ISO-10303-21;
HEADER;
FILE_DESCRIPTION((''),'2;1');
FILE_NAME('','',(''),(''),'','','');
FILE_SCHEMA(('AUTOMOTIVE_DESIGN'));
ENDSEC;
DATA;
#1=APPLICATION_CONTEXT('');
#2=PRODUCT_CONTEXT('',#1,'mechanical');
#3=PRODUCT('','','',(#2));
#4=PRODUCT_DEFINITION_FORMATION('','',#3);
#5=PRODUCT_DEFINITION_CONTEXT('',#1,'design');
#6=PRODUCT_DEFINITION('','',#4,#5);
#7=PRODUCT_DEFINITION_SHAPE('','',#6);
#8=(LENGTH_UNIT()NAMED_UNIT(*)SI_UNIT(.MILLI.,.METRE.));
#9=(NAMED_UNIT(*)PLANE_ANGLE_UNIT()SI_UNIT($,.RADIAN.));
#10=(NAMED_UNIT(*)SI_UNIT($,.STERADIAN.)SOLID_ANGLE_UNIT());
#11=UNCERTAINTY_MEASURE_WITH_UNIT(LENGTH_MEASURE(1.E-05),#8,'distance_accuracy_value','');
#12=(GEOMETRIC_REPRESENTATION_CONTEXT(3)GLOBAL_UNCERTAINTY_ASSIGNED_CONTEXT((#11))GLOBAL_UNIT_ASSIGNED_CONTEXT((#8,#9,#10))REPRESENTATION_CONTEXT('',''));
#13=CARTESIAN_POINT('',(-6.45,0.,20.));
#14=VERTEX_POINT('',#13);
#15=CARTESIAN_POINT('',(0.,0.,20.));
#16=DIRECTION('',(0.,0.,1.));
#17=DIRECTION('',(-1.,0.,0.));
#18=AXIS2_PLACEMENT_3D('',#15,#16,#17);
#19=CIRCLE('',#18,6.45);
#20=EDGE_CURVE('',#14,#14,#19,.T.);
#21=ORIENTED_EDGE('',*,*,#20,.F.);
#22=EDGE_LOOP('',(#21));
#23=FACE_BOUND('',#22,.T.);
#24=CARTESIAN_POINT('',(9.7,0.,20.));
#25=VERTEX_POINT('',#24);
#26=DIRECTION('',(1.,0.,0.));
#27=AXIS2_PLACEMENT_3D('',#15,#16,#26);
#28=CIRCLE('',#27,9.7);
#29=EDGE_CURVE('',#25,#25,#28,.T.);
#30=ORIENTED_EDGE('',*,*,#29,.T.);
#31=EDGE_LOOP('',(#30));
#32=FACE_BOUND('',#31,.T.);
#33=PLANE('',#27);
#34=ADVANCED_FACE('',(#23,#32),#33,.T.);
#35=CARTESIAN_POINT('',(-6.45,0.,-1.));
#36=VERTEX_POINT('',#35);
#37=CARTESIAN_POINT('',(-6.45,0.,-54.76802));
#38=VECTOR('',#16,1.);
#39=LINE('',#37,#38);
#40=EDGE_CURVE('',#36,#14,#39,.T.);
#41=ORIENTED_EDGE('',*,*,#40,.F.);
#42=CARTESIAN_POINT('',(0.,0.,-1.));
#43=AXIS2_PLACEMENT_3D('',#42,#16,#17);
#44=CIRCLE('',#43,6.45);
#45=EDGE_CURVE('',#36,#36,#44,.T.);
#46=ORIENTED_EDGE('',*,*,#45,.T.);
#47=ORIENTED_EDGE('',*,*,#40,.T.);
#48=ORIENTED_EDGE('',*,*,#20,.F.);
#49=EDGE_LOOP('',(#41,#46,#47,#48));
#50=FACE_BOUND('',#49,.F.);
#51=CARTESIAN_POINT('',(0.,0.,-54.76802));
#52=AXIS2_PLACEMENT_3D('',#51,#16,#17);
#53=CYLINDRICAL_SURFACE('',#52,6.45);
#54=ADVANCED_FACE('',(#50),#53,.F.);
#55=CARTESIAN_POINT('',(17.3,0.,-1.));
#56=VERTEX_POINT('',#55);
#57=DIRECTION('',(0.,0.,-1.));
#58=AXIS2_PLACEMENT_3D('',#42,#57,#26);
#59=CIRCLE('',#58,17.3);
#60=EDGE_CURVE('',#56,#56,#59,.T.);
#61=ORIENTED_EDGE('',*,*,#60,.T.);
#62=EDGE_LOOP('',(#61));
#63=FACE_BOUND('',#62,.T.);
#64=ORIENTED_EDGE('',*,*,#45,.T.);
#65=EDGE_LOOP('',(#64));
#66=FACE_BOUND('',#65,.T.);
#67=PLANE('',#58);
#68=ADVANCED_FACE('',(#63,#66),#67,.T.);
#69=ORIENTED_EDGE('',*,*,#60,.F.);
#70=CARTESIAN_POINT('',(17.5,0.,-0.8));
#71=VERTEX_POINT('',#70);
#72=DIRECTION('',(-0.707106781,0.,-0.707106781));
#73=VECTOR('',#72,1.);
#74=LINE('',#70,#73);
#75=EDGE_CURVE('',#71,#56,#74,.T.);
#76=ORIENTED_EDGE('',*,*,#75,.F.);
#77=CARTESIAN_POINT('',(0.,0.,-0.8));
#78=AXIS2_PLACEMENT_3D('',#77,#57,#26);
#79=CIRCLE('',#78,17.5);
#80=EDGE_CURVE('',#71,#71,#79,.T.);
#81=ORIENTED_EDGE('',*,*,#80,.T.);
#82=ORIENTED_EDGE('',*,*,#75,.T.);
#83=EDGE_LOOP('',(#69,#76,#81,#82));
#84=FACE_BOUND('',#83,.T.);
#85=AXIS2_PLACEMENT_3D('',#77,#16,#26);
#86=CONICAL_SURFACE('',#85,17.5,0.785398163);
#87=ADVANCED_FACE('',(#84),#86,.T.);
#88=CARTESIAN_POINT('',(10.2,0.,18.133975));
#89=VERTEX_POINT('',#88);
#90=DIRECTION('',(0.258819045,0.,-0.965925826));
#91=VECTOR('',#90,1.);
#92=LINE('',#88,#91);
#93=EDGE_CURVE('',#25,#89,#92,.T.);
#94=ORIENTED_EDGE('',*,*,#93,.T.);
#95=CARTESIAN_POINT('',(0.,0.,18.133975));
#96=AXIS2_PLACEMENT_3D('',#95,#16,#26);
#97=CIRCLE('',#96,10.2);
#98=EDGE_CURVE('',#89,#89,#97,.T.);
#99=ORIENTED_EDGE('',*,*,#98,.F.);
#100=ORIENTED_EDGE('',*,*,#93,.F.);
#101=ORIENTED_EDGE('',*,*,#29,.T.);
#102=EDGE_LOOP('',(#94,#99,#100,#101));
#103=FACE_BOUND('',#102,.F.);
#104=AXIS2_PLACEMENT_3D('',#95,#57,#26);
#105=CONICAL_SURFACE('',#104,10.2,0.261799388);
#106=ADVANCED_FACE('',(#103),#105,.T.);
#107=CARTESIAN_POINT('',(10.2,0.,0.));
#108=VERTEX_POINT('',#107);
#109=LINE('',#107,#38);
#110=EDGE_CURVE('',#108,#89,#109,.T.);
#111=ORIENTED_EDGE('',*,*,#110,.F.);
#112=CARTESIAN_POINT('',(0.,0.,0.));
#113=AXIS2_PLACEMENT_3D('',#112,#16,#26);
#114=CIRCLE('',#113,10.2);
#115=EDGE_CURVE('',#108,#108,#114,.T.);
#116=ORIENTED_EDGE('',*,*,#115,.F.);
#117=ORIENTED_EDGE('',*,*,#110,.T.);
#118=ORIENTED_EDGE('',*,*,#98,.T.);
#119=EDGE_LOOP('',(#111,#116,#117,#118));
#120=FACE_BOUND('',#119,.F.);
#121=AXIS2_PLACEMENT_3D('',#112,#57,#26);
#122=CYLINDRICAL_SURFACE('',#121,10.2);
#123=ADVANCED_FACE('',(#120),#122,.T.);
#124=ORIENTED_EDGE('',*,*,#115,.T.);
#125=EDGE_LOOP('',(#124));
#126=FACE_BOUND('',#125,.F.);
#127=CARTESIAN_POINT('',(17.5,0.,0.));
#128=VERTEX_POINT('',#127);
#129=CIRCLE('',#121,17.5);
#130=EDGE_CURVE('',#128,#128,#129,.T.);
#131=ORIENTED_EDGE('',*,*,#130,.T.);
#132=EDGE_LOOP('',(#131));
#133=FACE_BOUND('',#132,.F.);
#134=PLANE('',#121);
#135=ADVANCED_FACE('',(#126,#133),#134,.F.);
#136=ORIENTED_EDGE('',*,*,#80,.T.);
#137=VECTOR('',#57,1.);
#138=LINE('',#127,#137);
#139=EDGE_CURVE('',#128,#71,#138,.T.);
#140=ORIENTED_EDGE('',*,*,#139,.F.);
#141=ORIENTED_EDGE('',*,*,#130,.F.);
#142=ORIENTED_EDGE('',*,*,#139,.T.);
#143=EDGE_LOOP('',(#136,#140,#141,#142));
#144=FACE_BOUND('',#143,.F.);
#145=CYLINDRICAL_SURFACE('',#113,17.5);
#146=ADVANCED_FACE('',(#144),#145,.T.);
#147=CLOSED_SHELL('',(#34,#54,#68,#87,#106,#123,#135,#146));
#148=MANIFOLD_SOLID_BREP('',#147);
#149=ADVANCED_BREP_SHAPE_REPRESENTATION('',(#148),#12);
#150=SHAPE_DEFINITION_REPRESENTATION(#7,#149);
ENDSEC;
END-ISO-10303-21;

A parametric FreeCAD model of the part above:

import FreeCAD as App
import Part
import Sketcher

V = App.Vector


def edges_at(feature, points):
    """Names of the edges that pass closest to the given points."""
    edges = feature.Shape.Edges
    near = lambda p: min(range(len(edges)), key=lambda i: edges[i].distToShape(Part.Vertex(*p))[0])
    return sorted({f"Edge{near(p) + 1}" for p in points})

doc = App.newDocument("Part")
body = doc.addObject("PartDesign::Body", "Body")

sketch1 = body.newObject("Sketcher::SketchObject", "Sketch")
sketch1.AttachmentSupport = (doc.getObject("XY_Plane"), [""])
sketch1.MapMode = "FlatFace"
sketch1.addGeometry(Part.Circle(V(0, 0, 0), V(0, 0, 1), 10), False)
sketch1.addConstraint([
    Sketcher.Constraint("Coincident", 0, 3, -1, 1),
    Sketcher.Constraint("Diameter", 0, 20.4),
])
pad1 = body.newObject("PartDesign::Pad", "Pad")
pad1.Profile = sketch1
pad1.Length = 20

sketch2 = body.newObject("Sketcher::SketchObject", "Sketch001")
sketch2.AttachmentSupport = (doc.getObject("XY_Plane"), [""])
sketch2.MapMode = "FlatFace"
sketch2.addGeometry(Part.Circle(V(0, 0, 0), V(0, 0, 1), 18), False)
sketch2.addConstraint([
    Sketcher.Constraint("Coincident", 0, 3, -1, 1),
    Sketcher.Constraint("Diameter", 0, 35.0),
])
pad2 = body.newObject("PartDesign::Pad", "Pad001")
pad2.Profile = sketch2
pad2.Length = 1
pad2.Reversed = True

sketch3 = body.newObject("Sketcher::SketchObject", "Sketch002")
sketch3.AttachmentSupport = (doc.getObject("XY_Plane"), [""])
sketch3.MapMode = "FlatFace"
sketch3.AttachmentOffset = App.Placement(V(0, 0, -1), App.Rotation())
sketch3.addGeometry(Part.Circle(V(0, 0, 0), V(0, 0, 1), 6), False)
sketch3.addConstraint([
    Sketcher.Constraint("Coincident", 0, 3, -1, 1),
    Sketcher.Constraint("Diameter", 0, 12.9),
])
doc.recompute()
hole = body.newObject("PartDesign::Hole", "Hole")
hole.Profile = sketch3
hole.ThreadType = "None"
hole.Diameter = 12.9
hole.DepthType = "ThroughAll"
hole.Reversed = True
doc.recompute()

chamfer = body.newObject("PartDesign::Chamfer", "Chamfer")
chamfer.Base = (hole, edges_at(hole, [(-17.5, 0, -1)]))
chamfer.ChamferType = "Two distances"
chamfer.Size = 0.2
chamfer.Size2 = 0.2
doc.recompute()

chamfer2 = body.newObject("PartDesign::Chamfer", "Chamfer001")
chamfer2.Base = (chamfer, edges_at(chamfer, [(-10.2, 0, 20)]))
chamfer2.ChamferType = "Two distances"
chamfer2.Size = 0.5
chamfer2.Size2 = 1.866025
chamfer2.FlipDirection = True

doc.recompute()
